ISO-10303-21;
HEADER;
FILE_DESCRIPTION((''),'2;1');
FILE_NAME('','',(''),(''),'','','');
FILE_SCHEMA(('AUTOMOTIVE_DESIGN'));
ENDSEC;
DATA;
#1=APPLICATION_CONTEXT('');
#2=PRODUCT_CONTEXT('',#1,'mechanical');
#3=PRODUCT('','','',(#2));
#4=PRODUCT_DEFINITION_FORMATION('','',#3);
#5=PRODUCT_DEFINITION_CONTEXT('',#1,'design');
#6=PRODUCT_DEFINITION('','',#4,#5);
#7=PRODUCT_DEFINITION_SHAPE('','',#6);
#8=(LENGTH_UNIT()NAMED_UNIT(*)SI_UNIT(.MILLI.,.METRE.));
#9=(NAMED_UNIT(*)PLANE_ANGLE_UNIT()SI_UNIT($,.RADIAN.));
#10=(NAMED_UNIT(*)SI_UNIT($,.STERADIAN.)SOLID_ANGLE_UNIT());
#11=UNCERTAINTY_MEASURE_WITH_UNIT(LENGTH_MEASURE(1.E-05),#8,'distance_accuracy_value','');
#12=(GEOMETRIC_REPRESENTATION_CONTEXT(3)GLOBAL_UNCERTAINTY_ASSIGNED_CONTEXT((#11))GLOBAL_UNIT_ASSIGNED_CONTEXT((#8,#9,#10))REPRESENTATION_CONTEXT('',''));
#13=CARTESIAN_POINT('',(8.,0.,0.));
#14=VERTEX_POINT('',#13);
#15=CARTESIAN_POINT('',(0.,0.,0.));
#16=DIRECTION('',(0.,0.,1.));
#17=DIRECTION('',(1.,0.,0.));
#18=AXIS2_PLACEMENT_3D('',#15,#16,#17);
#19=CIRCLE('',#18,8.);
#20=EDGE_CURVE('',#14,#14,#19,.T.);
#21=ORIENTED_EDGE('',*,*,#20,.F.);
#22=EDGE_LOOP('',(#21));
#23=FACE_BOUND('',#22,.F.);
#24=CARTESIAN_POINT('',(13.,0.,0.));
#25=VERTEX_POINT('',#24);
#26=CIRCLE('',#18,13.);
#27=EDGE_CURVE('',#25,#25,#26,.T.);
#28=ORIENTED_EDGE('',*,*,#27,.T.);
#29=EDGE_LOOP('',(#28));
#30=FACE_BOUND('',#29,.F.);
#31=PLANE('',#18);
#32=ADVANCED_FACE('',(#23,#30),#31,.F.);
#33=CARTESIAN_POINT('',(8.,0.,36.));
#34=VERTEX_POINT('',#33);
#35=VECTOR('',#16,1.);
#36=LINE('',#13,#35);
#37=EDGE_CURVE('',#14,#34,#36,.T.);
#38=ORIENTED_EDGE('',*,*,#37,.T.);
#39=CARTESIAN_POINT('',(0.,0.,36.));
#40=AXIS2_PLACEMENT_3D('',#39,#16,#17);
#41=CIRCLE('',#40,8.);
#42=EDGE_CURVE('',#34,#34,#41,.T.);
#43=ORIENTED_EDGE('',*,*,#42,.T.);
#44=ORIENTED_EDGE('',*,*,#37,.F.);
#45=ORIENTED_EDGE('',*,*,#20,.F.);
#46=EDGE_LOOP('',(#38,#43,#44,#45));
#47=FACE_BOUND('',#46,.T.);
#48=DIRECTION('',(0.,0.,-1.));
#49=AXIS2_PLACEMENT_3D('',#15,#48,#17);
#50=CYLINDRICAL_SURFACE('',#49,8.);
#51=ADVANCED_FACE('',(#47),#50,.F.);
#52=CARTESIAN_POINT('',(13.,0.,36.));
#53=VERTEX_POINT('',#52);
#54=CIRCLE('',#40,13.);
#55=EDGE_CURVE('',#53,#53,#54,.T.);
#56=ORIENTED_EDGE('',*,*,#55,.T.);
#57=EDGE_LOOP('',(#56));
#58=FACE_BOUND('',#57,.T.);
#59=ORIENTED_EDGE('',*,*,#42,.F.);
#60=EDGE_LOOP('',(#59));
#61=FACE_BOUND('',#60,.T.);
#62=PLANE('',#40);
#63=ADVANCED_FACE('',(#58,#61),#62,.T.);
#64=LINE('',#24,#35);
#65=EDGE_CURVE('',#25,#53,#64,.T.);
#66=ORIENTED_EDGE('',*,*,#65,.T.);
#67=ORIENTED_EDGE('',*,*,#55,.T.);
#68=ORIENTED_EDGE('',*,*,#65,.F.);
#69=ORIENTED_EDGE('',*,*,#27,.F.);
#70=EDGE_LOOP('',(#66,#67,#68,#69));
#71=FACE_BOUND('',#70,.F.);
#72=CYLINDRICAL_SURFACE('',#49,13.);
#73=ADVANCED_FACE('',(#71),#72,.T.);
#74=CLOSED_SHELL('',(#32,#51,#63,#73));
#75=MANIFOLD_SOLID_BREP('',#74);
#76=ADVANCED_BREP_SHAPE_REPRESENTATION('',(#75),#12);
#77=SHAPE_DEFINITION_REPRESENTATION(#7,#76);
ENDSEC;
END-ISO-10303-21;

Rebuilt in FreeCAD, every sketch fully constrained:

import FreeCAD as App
import Part
import Sketcher
Q = App.Units.Quantity

doc = App.newDocument("Part")
params = doc.addObject("Spreadsheet::Sheet", "Params")
for row, (alias, value) in enumerate([
    ("sketch1_diameter", "26 mm"),
    ("sketch1_diameter2", "16 mm"),
    ("pad1_length", "36 mm"),
], start=1):
    params.set(f"A{row}", alias)
    params.set(f"B{row}", "=" + value)
    params.setAlias(f"B{row}", alias)

body = doc.addObject("PartDesign::Body", "Body")

# Sketch on XY plane
sketch1 = body.newObject("Sketcher::SketchObject", "Sketch")
sketch1.AttachmentSupport = (doc.getObject("XY_Plane"), [""])
sketch1.MapMode = "FlatFace"
sketch1.addGeometry(Part.Circle(App.Vector(0, 0, 0), App.Vector(0, 0, 1), 13), False)
sketch1.addGeometry(Part.Circle(App.Vector(0, 0, 0), App.Vector(0, 0, 1), 8), False)
sketch1.addConstraint(Sketcher.Constraint("Coincident", 0, 3, -1, 1))
sketch1.addConstraint(Sketcher.Constraint("Coincident", 1, 3, -1, 1))
sketch1.addConstraint(Sketcher.Constraint("Diameter", 0, Q("26 mm")))
sketch1.addConstraint(Sketcher.Constraint("Diameter", 1, Q("16 mm")))
sketch1.setExpression("Constraints[2]", "Params.sketch1_diameter")
sketch1.setExpression("Constraints[3]", "Params.sketch1_diameter2")
pad1 = body.newObject("PartDesign::Pad", "Pad")
pad1.Profile = sketch1
pad1.setExpression("Length", "Params.pad1_length")

doc.recompute()
